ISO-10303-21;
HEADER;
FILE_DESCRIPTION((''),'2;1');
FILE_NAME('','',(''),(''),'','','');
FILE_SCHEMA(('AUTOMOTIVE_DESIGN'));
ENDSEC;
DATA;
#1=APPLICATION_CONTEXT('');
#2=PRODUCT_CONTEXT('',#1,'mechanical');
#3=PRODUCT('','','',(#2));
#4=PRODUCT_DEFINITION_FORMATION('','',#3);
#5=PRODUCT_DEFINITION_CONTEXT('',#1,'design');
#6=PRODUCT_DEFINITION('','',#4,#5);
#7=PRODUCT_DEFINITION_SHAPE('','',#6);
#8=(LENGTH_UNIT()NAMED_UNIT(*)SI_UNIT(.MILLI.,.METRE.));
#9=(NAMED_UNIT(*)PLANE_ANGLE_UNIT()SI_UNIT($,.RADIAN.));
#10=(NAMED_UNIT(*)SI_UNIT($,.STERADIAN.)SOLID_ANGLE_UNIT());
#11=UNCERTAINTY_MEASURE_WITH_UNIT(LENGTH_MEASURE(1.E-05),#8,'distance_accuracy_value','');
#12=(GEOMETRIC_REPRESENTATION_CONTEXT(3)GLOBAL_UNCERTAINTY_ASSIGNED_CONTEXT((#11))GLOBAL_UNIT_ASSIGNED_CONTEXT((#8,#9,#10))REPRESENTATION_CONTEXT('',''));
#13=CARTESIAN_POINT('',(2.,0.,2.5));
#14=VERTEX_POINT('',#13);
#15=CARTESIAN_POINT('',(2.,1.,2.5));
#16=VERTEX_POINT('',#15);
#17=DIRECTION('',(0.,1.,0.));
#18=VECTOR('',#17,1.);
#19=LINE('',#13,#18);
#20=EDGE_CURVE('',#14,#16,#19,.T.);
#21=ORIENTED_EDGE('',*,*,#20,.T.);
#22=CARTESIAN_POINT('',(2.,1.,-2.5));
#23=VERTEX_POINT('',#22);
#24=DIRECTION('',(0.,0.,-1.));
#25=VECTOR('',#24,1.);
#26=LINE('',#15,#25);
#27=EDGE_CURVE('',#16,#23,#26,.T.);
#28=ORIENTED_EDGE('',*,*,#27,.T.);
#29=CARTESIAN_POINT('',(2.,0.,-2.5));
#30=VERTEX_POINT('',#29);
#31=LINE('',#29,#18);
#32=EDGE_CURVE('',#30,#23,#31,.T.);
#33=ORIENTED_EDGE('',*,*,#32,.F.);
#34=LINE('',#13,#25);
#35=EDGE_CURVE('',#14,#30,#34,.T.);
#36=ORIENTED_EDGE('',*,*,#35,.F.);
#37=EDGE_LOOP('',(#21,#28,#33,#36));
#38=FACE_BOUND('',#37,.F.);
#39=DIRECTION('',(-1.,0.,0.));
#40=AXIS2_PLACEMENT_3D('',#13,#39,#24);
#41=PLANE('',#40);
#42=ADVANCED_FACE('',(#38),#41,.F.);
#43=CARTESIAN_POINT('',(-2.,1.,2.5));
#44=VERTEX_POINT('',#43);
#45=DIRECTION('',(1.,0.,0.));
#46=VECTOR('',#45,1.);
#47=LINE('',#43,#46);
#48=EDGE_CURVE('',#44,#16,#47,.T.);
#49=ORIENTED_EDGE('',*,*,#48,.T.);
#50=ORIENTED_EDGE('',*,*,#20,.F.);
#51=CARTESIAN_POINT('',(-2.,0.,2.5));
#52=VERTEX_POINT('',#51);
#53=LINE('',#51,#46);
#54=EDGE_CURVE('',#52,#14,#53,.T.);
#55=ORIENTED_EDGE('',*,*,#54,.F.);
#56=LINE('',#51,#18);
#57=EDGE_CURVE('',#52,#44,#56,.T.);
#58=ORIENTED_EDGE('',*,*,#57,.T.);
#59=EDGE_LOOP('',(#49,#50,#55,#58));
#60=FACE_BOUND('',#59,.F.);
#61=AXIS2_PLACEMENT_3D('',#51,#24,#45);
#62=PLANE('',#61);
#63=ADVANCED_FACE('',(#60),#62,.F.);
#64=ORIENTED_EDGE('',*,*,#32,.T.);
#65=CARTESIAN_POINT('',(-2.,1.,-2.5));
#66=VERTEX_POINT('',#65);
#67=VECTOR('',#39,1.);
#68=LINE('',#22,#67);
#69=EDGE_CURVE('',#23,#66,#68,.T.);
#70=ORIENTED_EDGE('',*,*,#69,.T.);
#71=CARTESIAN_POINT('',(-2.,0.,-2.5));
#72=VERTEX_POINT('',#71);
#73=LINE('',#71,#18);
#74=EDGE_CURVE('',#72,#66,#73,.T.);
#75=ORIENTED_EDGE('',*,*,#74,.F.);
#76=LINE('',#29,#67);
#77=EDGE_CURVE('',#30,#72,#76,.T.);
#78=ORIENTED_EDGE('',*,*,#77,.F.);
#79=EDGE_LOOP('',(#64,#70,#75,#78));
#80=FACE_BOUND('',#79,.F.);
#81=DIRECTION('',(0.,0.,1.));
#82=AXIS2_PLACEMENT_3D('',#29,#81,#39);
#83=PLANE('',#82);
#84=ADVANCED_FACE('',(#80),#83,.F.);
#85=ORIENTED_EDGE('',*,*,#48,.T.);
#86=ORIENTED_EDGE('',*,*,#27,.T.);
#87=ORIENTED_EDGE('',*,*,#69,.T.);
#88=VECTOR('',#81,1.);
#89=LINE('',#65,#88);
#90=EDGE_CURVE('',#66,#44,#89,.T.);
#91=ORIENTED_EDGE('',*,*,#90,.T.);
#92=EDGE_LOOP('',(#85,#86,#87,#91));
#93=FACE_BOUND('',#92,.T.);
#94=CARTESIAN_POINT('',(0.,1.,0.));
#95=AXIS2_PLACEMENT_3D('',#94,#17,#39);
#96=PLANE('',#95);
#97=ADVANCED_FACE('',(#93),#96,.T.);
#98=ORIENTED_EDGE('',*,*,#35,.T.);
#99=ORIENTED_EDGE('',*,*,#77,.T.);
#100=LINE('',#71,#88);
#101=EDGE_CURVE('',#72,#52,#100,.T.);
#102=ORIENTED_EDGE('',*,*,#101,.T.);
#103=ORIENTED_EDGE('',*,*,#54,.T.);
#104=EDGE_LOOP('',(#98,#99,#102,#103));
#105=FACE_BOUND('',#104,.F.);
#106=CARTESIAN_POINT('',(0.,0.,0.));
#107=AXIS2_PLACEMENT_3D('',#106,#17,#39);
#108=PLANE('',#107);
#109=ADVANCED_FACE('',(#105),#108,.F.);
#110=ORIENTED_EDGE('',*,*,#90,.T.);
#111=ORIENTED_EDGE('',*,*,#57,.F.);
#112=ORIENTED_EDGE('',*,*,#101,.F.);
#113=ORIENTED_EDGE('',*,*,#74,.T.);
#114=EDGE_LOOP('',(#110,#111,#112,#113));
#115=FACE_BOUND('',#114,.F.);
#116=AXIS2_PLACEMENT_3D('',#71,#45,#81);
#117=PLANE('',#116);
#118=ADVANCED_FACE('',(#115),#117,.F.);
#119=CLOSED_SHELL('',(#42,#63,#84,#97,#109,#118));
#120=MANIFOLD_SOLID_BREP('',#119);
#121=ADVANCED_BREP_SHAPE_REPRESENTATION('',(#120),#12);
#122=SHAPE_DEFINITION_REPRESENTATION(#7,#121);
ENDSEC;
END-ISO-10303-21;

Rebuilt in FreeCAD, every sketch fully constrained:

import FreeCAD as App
import Part
import Sketcher
from FreeCAD import Vector
Q = App.Units.Quantity


def add_polygon(sketch, points):
    """Adds a closed chain of lines whose ends are joined by coincident constraints."""
    first, n = sketch.GeometryCount, len(points)
    for a, b in zip(points, points[1:] + points[:1]):
        sketch.addGeometry(Part.LineSegment(App.Vector(*a, 0), App.Vector(*b, 0)), False)
    for i in range(n):
        sketch.addConstraint(Sketcher.Constraint("Coincident", first + i, 2, first + (i + 1) % n, 1))

doc = App.newDocument("Part")
params = doc.addObject("Spreadsheet::Sheet", "Params")
for row, (alias, value) in enumerate([
    ("sketch1_width", "4 mm"),
    ("sketch1_height", "5 mm"),
    ("pad1_length", "1 mm"),
], start=1):
    params.set(f"A{row}", alias)
    params.set(f"B{row}", "=" + value)
    params.setAlias(f"B{row}", alias)

body = doc.addObject("PartDesign::Body", "Body")

# Sketch on XZ plane
sketch1 = body.newObject("Sketcher::SketchObject", "Sketch")
sketch1.AttachmentSupport = (doc.getObject("XZ_Plane"), [""])
sketch1.MapMode = "FlatFace"
add_polygon(sketch1, [(-2, -2.5), (-2, 2.5), (2, 2.5), (2, -2.5)])  # lines 0-3
sketch1.addConstraint([
    Sketcher.Constraint("Vertical", 0),
    Sketcher.Constraint("Horizontal", 1),
    Sketcher.Constraint("Vertical", 2),
    Sketcher.Constraint("Horizontal", 3),
    Sketcher.Constraint("Symmetric", 0, 2, 2, 2, -1, 1),
    Sketcher.Constraint("DistanceX", 1, 1, 1, 2, Q("4 mm")),
    Sketcher.Constraint("DistanceY", 0, 1, 0, 2, Q("5 mm")),
])
sketch1.setExpression("Constraints[9]", "Params.sketch1_width")
sketch1.setExpression("Constraints[10]", "Params.sketch1_height")
pad1 = body.newObject("PartDesign::Pad", "Pad")
pad1.Profile = sketch1
pad1.setExpression("Length", "Params.pad1_length")
pad1.Reversed = True

doc.recompute()
